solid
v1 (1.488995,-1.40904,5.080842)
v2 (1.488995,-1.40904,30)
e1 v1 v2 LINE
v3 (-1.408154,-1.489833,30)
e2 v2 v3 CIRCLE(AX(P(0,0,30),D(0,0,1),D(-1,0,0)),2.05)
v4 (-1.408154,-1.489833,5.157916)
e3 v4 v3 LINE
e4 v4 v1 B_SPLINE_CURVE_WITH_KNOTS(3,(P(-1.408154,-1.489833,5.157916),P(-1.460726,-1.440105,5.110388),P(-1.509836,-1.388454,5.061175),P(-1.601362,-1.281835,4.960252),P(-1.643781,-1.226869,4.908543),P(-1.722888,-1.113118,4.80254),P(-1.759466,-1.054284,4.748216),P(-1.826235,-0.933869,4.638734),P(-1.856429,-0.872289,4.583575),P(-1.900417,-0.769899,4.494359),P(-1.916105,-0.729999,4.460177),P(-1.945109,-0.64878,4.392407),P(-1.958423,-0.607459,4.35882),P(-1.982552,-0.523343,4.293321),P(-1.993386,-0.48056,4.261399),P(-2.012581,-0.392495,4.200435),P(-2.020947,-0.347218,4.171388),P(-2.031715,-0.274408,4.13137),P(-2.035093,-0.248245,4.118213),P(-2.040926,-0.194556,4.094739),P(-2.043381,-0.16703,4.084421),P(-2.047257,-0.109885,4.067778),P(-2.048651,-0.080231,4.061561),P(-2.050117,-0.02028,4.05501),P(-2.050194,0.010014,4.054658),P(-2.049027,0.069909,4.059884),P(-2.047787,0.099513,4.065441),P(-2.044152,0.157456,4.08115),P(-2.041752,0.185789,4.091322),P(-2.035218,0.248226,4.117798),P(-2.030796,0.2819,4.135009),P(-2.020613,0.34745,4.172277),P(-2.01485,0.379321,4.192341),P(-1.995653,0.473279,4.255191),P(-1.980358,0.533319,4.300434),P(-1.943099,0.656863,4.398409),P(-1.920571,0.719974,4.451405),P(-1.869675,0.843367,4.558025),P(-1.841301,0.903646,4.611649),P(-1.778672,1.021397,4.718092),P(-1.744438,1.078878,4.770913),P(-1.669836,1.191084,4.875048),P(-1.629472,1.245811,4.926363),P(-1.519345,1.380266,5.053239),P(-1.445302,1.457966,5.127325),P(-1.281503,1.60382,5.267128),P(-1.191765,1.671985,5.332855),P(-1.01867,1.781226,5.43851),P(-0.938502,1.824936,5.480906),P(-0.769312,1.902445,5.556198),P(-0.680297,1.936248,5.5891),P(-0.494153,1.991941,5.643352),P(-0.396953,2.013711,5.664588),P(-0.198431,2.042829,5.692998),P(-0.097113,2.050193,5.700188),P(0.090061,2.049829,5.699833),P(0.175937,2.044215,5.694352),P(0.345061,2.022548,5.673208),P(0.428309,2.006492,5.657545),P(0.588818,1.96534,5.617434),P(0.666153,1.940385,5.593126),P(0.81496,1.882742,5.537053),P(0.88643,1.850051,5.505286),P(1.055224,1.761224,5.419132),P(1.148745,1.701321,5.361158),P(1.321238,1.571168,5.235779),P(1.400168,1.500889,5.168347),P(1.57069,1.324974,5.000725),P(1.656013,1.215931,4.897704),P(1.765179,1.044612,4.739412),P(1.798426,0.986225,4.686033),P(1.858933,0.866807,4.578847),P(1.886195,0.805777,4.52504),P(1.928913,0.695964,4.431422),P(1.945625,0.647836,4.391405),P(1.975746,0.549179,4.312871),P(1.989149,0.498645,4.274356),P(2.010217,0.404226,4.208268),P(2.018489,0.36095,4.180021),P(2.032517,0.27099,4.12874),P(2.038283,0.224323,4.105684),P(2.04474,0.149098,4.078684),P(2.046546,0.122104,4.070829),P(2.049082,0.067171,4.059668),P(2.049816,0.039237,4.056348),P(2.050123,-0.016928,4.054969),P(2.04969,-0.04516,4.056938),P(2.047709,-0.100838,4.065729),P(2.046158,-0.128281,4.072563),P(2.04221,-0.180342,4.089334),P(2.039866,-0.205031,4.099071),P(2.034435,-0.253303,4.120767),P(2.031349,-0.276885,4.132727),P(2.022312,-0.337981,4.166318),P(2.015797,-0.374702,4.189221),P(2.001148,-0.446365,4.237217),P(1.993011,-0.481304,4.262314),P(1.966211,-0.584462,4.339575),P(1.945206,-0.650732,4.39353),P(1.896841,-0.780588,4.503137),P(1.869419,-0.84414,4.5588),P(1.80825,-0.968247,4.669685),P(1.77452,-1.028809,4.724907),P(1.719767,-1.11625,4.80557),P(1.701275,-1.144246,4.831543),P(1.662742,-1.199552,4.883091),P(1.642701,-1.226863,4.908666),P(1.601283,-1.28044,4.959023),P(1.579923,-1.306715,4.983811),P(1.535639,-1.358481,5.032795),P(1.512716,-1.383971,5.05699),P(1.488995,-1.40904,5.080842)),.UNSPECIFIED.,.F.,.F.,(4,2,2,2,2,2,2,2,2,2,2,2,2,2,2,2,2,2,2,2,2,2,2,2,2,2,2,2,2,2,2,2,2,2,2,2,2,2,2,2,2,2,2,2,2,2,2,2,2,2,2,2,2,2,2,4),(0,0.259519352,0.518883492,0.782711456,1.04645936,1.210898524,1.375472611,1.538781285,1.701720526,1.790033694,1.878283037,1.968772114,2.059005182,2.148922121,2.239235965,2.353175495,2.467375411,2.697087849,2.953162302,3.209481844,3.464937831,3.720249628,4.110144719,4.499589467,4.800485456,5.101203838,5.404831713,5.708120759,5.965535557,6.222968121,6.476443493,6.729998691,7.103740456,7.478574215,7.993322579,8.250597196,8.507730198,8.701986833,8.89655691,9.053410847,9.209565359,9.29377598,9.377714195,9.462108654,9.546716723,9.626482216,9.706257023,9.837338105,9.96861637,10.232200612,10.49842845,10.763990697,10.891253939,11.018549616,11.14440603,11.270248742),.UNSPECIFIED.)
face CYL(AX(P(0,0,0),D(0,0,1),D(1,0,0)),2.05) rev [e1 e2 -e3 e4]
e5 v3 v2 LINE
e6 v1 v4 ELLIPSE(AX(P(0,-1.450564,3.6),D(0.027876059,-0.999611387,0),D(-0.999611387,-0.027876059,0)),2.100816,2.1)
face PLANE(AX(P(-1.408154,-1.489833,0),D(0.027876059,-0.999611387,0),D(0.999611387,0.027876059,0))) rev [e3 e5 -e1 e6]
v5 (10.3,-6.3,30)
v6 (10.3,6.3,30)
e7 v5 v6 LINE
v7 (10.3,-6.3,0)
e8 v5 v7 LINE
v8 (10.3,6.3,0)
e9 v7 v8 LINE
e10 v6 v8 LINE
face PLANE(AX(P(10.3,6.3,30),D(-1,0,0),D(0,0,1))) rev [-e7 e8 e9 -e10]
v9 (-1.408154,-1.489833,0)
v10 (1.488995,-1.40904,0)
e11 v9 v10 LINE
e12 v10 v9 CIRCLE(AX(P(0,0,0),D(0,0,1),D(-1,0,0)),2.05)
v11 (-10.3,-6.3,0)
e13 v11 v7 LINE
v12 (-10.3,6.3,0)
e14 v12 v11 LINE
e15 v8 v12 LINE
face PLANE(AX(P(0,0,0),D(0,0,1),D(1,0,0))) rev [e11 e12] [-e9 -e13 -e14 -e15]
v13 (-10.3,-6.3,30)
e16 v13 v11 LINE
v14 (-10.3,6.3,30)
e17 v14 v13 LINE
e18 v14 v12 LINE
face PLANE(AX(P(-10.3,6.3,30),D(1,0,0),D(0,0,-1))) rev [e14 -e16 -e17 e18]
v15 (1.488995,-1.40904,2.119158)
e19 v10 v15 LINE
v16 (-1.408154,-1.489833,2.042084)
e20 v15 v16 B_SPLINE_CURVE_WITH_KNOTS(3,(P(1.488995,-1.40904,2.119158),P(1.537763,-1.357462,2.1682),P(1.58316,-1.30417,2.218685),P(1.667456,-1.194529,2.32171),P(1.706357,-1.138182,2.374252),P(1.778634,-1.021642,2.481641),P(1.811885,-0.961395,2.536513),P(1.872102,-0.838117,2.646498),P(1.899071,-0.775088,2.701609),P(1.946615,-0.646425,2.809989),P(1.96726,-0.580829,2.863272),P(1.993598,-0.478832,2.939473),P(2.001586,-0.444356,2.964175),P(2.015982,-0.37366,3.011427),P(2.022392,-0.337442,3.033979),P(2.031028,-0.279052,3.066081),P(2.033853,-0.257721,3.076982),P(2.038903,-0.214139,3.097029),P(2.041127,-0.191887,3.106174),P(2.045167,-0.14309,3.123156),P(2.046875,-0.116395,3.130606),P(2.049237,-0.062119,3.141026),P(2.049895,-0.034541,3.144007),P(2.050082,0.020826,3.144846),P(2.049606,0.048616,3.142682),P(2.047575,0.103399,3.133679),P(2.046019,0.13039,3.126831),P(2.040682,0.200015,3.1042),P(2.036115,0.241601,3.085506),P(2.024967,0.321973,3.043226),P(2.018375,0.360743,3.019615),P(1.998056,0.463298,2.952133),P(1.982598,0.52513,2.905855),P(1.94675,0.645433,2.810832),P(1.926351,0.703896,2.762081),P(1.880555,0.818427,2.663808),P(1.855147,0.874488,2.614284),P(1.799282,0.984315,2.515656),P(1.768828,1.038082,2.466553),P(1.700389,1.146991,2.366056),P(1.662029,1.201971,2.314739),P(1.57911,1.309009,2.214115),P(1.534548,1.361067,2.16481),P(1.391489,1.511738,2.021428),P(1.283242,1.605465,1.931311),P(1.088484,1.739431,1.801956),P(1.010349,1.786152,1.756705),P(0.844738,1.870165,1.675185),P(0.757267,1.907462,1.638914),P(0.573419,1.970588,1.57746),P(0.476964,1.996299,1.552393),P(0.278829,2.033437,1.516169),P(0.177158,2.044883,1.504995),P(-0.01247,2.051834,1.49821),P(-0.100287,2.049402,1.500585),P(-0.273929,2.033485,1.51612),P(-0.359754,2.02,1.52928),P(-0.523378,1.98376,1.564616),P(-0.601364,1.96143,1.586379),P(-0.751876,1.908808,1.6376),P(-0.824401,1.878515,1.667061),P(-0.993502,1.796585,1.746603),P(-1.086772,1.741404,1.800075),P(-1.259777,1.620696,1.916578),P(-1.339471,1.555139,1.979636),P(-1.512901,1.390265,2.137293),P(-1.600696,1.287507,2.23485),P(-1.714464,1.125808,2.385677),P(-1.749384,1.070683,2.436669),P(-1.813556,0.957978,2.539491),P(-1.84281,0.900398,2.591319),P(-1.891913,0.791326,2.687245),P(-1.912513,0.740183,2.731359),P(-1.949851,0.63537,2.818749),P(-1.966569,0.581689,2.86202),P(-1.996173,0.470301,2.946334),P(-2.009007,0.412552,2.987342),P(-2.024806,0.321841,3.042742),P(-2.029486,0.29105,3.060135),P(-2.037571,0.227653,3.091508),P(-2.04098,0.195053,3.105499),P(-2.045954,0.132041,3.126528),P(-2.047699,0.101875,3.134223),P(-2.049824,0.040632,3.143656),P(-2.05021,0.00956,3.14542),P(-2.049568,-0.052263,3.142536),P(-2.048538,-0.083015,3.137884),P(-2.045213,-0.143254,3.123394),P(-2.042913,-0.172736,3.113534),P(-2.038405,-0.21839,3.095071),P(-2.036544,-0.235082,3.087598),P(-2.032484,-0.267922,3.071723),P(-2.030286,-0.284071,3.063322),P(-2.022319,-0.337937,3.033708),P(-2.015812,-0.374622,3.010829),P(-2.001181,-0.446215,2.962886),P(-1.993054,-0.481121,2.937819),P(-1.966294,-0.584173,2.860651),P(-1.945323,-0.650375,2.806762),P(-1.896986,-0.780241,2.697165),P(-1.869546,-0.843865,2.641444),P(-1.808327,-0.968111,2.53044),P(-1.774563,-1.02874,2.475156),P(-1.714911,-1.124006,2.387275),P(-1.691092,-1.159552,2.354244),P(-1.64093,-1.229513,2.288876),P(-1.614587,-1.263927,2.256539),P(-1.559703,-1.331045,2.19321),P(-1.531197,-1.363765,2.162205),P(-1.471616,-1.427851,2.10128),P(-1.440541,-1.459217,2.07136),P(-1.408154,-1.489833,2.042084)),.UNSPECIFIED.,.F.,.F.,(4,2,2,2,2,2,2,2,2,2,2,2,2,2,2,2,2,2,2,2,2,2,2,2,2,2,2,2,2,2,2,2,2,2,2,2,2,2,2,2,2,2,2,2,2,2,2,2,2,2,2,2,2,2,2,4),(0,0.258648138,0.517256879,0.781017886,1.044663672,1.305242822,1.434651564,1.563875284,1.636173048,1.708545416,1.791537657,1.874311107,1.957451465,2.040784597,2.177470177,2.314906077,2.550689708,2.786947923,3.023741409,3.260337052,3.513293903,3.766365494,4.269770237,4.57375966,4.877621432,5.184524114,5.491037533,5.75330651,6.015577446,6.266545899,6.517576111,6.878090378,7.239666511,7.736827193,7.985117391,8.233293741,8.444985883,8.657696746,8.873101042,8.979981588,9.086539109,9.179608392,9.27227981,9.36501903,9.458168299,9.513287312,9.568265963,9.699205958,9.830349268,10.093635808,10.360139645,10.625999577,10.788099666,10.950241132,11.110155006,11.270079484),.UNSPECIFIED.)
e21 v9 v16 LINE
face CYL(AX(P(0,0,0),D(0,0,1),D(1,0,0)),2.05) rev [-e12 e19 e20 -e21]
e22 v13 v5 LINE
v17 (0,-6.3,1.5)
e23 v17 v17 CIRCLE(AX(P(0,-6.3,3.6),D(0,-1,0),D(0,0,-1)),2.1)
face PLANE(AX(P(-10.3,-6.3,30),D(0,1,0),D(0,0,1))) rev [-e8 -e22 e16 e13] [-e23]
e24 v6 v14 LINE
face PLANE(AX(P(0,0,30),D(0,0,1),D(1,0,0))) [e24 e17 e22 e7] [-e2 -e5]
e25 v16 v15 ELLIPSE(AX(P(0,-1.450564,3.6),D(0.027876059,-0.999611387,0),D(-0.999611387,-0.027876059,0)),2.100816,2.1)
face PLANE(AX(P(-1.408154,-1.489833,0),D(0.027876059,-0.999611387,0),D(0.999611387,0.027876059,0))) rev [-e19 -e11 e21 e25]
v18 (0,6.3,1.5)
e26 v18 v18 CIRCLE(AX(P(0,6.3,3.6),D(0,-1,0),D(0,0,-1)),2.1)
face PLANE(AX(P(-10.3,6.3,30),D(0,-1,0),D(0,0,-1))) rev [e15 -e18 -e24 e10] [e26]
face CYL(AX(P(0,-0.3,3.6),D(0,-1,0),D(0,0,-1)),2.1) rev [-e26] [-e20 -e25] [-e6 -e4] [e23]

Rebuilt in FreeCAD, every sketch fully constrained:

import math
import FreeCAD as App
import Part
import Sketcher


def add_polygon(sketch, points):
    """Adds a closed chain of lines whose ends are joined by coincident constraints."""
    first, n = sketch.GeometryCount, len(points)
    for a, b in zip(points, points[1:] + points[:1]):
        sketch.addGeometry(Part.LineSegment(App.Vector(*a, 0), App.Vector(*b, 0)), False)
    for i in range(n):
        sketch.addConstraint(Sketcher.Constraint("Coincident", first + i, 2, first + (i + 1) % n, 1))

doc = App.newDocument("Part")
body = doc.addObject("PartDesign::Body", "Body")

sketch1 = body.newObject("Sketcher::SketchObject", "Sketch")
sketch1.AttachmentSupport = (doc.getObject("XY_Plane"), [""])
sketch1.MapMode = "FlatFace"
add_polygon(sketch1, [(-10, 6), (-10, -6), (10, -6), (10, 6)])
sketch1.addConstraint([
    Sketcher.Constraint("Vertical", 0),
    Sketcher.Constraint("Horizontal", 1),
    Sketcher.Constraint("Vertical", 2),
    Sketcher.Constraint("Horizontal", 3),
    Sketcher.Constraint("Symmetric", 0, 2, 2, 2, -1, 1),
    Sketcher.Constraint("DistanceX", 1, 1, 1, 2, 20.6),
    Sketcher.Constraint("DistanceY", 0, 2, 0, 1, 12.6),
])
pad1 = body.newObject("PartDesign::Pad", "Pad")
pad1.Profile = sketch1
pad1.Length = 30

sketch2 = body.newObject("Sketcher::SketchObject", "Sketch001")
sketch2.AttachmentSupport = (doc.getObject("XY_Plane"), [""])
sketch2.MapMode = "FlatFace"
sketch2.AttachmentOffset = App.Placement(App.Vector(0, 0, 30), App.Rotation())
sketch2.addGeometry([
    Part.LineSegment(App.Vector(-1.4, -1.5, 0), App.Vector(1.5, -1.4, 0)),
    Part.ArcOfCircle(Part.Circle(App.Vector(0, 0, 0), App.Vector(0, 0, 1), 2), math.radians(-43), math.radians(227)),
], False)
sketch2.addConstraint([
    Sketcher.Constraint("Coincident", 0, 1, 1, 2),
    Sketcher.Constraint("Coincident", 1, 1, 0, 2),
    Sketcher.Constraint("Coincident", 1, 3, -1, 1),
    Sketcher.Constraint("Radius", 1, 2.05),
    Sketcher.Constraint("DistanceY", 1, 1, -1, 1, 1.40904),
    Sketcher.Constraint("DistanceX", 0, 1, 1, 1, 2.897149),
])
pocket1 = body.newObject("PartDesign::Pocket", "Pocket")
pocket1.Profile = sketch2
pocket1.Length = 30

sketch3 = body.newObject("Sketcher::SketchObject", "Sketch002")
sketch3.AttachmentSupport = (doc.getObject("XZ_Plane"), [""])
sketch3.MapMode = "FlatFace"
sketch3.AttachmentOffset = App.Placement(App.Vector(0, 0, 6.3), App.Rotation())
sketch3.addGeometry(Part.Circle(App.Vector(0, 3.6, 0), App.Vector(0, 0, 1), 2.1), False)
sketch3.addConstraint([
    Sketcher.Constraint("PointOnObject", 0, 3, -2),
    Sketcher.Constraint("Diameter", 0, 4.2),
    Sketcher.Constraint("DistanceY", -1, 1, 0, 3, 3.6),
])
pocket2 = body.newObject("PartDesign::Pocket", "Pocket001")
pocket2.Profile = sketch3
pocket2.Length = 6

sketch4 = body.newObject("Sketcher::SketchObject", "Sketch003")
sketch4.AttachmentSupport = (doc.getObject("XZ_Plane"), [""])
sketch4.MapMode = "FlatFace"
sketch4.AttachmentOffset = App.Placement(App.Vector(0, 0, 6.3), App.Rotation())
sketch4.addGeometry(Part.Circle(App.Vector(0, 3.6, 0), App.Vector(0, 0, 1), 2.1), False)
sketch4.addConstraint([
    Sketcher.Constraint("PointOnObject", 0, 3, -2),
    Sketcher.Constraint("Diameter", 0, 4.2),
    Sketcher.Constraint("DistanceY", -1, 1, 0, 3, 3.6),
])
pocket3 = body.newObject("PartDesign::Pocket", "Pocket002")
pocket3.Profile = sketch4
pocket3.Length = 30

doc.recompute()
